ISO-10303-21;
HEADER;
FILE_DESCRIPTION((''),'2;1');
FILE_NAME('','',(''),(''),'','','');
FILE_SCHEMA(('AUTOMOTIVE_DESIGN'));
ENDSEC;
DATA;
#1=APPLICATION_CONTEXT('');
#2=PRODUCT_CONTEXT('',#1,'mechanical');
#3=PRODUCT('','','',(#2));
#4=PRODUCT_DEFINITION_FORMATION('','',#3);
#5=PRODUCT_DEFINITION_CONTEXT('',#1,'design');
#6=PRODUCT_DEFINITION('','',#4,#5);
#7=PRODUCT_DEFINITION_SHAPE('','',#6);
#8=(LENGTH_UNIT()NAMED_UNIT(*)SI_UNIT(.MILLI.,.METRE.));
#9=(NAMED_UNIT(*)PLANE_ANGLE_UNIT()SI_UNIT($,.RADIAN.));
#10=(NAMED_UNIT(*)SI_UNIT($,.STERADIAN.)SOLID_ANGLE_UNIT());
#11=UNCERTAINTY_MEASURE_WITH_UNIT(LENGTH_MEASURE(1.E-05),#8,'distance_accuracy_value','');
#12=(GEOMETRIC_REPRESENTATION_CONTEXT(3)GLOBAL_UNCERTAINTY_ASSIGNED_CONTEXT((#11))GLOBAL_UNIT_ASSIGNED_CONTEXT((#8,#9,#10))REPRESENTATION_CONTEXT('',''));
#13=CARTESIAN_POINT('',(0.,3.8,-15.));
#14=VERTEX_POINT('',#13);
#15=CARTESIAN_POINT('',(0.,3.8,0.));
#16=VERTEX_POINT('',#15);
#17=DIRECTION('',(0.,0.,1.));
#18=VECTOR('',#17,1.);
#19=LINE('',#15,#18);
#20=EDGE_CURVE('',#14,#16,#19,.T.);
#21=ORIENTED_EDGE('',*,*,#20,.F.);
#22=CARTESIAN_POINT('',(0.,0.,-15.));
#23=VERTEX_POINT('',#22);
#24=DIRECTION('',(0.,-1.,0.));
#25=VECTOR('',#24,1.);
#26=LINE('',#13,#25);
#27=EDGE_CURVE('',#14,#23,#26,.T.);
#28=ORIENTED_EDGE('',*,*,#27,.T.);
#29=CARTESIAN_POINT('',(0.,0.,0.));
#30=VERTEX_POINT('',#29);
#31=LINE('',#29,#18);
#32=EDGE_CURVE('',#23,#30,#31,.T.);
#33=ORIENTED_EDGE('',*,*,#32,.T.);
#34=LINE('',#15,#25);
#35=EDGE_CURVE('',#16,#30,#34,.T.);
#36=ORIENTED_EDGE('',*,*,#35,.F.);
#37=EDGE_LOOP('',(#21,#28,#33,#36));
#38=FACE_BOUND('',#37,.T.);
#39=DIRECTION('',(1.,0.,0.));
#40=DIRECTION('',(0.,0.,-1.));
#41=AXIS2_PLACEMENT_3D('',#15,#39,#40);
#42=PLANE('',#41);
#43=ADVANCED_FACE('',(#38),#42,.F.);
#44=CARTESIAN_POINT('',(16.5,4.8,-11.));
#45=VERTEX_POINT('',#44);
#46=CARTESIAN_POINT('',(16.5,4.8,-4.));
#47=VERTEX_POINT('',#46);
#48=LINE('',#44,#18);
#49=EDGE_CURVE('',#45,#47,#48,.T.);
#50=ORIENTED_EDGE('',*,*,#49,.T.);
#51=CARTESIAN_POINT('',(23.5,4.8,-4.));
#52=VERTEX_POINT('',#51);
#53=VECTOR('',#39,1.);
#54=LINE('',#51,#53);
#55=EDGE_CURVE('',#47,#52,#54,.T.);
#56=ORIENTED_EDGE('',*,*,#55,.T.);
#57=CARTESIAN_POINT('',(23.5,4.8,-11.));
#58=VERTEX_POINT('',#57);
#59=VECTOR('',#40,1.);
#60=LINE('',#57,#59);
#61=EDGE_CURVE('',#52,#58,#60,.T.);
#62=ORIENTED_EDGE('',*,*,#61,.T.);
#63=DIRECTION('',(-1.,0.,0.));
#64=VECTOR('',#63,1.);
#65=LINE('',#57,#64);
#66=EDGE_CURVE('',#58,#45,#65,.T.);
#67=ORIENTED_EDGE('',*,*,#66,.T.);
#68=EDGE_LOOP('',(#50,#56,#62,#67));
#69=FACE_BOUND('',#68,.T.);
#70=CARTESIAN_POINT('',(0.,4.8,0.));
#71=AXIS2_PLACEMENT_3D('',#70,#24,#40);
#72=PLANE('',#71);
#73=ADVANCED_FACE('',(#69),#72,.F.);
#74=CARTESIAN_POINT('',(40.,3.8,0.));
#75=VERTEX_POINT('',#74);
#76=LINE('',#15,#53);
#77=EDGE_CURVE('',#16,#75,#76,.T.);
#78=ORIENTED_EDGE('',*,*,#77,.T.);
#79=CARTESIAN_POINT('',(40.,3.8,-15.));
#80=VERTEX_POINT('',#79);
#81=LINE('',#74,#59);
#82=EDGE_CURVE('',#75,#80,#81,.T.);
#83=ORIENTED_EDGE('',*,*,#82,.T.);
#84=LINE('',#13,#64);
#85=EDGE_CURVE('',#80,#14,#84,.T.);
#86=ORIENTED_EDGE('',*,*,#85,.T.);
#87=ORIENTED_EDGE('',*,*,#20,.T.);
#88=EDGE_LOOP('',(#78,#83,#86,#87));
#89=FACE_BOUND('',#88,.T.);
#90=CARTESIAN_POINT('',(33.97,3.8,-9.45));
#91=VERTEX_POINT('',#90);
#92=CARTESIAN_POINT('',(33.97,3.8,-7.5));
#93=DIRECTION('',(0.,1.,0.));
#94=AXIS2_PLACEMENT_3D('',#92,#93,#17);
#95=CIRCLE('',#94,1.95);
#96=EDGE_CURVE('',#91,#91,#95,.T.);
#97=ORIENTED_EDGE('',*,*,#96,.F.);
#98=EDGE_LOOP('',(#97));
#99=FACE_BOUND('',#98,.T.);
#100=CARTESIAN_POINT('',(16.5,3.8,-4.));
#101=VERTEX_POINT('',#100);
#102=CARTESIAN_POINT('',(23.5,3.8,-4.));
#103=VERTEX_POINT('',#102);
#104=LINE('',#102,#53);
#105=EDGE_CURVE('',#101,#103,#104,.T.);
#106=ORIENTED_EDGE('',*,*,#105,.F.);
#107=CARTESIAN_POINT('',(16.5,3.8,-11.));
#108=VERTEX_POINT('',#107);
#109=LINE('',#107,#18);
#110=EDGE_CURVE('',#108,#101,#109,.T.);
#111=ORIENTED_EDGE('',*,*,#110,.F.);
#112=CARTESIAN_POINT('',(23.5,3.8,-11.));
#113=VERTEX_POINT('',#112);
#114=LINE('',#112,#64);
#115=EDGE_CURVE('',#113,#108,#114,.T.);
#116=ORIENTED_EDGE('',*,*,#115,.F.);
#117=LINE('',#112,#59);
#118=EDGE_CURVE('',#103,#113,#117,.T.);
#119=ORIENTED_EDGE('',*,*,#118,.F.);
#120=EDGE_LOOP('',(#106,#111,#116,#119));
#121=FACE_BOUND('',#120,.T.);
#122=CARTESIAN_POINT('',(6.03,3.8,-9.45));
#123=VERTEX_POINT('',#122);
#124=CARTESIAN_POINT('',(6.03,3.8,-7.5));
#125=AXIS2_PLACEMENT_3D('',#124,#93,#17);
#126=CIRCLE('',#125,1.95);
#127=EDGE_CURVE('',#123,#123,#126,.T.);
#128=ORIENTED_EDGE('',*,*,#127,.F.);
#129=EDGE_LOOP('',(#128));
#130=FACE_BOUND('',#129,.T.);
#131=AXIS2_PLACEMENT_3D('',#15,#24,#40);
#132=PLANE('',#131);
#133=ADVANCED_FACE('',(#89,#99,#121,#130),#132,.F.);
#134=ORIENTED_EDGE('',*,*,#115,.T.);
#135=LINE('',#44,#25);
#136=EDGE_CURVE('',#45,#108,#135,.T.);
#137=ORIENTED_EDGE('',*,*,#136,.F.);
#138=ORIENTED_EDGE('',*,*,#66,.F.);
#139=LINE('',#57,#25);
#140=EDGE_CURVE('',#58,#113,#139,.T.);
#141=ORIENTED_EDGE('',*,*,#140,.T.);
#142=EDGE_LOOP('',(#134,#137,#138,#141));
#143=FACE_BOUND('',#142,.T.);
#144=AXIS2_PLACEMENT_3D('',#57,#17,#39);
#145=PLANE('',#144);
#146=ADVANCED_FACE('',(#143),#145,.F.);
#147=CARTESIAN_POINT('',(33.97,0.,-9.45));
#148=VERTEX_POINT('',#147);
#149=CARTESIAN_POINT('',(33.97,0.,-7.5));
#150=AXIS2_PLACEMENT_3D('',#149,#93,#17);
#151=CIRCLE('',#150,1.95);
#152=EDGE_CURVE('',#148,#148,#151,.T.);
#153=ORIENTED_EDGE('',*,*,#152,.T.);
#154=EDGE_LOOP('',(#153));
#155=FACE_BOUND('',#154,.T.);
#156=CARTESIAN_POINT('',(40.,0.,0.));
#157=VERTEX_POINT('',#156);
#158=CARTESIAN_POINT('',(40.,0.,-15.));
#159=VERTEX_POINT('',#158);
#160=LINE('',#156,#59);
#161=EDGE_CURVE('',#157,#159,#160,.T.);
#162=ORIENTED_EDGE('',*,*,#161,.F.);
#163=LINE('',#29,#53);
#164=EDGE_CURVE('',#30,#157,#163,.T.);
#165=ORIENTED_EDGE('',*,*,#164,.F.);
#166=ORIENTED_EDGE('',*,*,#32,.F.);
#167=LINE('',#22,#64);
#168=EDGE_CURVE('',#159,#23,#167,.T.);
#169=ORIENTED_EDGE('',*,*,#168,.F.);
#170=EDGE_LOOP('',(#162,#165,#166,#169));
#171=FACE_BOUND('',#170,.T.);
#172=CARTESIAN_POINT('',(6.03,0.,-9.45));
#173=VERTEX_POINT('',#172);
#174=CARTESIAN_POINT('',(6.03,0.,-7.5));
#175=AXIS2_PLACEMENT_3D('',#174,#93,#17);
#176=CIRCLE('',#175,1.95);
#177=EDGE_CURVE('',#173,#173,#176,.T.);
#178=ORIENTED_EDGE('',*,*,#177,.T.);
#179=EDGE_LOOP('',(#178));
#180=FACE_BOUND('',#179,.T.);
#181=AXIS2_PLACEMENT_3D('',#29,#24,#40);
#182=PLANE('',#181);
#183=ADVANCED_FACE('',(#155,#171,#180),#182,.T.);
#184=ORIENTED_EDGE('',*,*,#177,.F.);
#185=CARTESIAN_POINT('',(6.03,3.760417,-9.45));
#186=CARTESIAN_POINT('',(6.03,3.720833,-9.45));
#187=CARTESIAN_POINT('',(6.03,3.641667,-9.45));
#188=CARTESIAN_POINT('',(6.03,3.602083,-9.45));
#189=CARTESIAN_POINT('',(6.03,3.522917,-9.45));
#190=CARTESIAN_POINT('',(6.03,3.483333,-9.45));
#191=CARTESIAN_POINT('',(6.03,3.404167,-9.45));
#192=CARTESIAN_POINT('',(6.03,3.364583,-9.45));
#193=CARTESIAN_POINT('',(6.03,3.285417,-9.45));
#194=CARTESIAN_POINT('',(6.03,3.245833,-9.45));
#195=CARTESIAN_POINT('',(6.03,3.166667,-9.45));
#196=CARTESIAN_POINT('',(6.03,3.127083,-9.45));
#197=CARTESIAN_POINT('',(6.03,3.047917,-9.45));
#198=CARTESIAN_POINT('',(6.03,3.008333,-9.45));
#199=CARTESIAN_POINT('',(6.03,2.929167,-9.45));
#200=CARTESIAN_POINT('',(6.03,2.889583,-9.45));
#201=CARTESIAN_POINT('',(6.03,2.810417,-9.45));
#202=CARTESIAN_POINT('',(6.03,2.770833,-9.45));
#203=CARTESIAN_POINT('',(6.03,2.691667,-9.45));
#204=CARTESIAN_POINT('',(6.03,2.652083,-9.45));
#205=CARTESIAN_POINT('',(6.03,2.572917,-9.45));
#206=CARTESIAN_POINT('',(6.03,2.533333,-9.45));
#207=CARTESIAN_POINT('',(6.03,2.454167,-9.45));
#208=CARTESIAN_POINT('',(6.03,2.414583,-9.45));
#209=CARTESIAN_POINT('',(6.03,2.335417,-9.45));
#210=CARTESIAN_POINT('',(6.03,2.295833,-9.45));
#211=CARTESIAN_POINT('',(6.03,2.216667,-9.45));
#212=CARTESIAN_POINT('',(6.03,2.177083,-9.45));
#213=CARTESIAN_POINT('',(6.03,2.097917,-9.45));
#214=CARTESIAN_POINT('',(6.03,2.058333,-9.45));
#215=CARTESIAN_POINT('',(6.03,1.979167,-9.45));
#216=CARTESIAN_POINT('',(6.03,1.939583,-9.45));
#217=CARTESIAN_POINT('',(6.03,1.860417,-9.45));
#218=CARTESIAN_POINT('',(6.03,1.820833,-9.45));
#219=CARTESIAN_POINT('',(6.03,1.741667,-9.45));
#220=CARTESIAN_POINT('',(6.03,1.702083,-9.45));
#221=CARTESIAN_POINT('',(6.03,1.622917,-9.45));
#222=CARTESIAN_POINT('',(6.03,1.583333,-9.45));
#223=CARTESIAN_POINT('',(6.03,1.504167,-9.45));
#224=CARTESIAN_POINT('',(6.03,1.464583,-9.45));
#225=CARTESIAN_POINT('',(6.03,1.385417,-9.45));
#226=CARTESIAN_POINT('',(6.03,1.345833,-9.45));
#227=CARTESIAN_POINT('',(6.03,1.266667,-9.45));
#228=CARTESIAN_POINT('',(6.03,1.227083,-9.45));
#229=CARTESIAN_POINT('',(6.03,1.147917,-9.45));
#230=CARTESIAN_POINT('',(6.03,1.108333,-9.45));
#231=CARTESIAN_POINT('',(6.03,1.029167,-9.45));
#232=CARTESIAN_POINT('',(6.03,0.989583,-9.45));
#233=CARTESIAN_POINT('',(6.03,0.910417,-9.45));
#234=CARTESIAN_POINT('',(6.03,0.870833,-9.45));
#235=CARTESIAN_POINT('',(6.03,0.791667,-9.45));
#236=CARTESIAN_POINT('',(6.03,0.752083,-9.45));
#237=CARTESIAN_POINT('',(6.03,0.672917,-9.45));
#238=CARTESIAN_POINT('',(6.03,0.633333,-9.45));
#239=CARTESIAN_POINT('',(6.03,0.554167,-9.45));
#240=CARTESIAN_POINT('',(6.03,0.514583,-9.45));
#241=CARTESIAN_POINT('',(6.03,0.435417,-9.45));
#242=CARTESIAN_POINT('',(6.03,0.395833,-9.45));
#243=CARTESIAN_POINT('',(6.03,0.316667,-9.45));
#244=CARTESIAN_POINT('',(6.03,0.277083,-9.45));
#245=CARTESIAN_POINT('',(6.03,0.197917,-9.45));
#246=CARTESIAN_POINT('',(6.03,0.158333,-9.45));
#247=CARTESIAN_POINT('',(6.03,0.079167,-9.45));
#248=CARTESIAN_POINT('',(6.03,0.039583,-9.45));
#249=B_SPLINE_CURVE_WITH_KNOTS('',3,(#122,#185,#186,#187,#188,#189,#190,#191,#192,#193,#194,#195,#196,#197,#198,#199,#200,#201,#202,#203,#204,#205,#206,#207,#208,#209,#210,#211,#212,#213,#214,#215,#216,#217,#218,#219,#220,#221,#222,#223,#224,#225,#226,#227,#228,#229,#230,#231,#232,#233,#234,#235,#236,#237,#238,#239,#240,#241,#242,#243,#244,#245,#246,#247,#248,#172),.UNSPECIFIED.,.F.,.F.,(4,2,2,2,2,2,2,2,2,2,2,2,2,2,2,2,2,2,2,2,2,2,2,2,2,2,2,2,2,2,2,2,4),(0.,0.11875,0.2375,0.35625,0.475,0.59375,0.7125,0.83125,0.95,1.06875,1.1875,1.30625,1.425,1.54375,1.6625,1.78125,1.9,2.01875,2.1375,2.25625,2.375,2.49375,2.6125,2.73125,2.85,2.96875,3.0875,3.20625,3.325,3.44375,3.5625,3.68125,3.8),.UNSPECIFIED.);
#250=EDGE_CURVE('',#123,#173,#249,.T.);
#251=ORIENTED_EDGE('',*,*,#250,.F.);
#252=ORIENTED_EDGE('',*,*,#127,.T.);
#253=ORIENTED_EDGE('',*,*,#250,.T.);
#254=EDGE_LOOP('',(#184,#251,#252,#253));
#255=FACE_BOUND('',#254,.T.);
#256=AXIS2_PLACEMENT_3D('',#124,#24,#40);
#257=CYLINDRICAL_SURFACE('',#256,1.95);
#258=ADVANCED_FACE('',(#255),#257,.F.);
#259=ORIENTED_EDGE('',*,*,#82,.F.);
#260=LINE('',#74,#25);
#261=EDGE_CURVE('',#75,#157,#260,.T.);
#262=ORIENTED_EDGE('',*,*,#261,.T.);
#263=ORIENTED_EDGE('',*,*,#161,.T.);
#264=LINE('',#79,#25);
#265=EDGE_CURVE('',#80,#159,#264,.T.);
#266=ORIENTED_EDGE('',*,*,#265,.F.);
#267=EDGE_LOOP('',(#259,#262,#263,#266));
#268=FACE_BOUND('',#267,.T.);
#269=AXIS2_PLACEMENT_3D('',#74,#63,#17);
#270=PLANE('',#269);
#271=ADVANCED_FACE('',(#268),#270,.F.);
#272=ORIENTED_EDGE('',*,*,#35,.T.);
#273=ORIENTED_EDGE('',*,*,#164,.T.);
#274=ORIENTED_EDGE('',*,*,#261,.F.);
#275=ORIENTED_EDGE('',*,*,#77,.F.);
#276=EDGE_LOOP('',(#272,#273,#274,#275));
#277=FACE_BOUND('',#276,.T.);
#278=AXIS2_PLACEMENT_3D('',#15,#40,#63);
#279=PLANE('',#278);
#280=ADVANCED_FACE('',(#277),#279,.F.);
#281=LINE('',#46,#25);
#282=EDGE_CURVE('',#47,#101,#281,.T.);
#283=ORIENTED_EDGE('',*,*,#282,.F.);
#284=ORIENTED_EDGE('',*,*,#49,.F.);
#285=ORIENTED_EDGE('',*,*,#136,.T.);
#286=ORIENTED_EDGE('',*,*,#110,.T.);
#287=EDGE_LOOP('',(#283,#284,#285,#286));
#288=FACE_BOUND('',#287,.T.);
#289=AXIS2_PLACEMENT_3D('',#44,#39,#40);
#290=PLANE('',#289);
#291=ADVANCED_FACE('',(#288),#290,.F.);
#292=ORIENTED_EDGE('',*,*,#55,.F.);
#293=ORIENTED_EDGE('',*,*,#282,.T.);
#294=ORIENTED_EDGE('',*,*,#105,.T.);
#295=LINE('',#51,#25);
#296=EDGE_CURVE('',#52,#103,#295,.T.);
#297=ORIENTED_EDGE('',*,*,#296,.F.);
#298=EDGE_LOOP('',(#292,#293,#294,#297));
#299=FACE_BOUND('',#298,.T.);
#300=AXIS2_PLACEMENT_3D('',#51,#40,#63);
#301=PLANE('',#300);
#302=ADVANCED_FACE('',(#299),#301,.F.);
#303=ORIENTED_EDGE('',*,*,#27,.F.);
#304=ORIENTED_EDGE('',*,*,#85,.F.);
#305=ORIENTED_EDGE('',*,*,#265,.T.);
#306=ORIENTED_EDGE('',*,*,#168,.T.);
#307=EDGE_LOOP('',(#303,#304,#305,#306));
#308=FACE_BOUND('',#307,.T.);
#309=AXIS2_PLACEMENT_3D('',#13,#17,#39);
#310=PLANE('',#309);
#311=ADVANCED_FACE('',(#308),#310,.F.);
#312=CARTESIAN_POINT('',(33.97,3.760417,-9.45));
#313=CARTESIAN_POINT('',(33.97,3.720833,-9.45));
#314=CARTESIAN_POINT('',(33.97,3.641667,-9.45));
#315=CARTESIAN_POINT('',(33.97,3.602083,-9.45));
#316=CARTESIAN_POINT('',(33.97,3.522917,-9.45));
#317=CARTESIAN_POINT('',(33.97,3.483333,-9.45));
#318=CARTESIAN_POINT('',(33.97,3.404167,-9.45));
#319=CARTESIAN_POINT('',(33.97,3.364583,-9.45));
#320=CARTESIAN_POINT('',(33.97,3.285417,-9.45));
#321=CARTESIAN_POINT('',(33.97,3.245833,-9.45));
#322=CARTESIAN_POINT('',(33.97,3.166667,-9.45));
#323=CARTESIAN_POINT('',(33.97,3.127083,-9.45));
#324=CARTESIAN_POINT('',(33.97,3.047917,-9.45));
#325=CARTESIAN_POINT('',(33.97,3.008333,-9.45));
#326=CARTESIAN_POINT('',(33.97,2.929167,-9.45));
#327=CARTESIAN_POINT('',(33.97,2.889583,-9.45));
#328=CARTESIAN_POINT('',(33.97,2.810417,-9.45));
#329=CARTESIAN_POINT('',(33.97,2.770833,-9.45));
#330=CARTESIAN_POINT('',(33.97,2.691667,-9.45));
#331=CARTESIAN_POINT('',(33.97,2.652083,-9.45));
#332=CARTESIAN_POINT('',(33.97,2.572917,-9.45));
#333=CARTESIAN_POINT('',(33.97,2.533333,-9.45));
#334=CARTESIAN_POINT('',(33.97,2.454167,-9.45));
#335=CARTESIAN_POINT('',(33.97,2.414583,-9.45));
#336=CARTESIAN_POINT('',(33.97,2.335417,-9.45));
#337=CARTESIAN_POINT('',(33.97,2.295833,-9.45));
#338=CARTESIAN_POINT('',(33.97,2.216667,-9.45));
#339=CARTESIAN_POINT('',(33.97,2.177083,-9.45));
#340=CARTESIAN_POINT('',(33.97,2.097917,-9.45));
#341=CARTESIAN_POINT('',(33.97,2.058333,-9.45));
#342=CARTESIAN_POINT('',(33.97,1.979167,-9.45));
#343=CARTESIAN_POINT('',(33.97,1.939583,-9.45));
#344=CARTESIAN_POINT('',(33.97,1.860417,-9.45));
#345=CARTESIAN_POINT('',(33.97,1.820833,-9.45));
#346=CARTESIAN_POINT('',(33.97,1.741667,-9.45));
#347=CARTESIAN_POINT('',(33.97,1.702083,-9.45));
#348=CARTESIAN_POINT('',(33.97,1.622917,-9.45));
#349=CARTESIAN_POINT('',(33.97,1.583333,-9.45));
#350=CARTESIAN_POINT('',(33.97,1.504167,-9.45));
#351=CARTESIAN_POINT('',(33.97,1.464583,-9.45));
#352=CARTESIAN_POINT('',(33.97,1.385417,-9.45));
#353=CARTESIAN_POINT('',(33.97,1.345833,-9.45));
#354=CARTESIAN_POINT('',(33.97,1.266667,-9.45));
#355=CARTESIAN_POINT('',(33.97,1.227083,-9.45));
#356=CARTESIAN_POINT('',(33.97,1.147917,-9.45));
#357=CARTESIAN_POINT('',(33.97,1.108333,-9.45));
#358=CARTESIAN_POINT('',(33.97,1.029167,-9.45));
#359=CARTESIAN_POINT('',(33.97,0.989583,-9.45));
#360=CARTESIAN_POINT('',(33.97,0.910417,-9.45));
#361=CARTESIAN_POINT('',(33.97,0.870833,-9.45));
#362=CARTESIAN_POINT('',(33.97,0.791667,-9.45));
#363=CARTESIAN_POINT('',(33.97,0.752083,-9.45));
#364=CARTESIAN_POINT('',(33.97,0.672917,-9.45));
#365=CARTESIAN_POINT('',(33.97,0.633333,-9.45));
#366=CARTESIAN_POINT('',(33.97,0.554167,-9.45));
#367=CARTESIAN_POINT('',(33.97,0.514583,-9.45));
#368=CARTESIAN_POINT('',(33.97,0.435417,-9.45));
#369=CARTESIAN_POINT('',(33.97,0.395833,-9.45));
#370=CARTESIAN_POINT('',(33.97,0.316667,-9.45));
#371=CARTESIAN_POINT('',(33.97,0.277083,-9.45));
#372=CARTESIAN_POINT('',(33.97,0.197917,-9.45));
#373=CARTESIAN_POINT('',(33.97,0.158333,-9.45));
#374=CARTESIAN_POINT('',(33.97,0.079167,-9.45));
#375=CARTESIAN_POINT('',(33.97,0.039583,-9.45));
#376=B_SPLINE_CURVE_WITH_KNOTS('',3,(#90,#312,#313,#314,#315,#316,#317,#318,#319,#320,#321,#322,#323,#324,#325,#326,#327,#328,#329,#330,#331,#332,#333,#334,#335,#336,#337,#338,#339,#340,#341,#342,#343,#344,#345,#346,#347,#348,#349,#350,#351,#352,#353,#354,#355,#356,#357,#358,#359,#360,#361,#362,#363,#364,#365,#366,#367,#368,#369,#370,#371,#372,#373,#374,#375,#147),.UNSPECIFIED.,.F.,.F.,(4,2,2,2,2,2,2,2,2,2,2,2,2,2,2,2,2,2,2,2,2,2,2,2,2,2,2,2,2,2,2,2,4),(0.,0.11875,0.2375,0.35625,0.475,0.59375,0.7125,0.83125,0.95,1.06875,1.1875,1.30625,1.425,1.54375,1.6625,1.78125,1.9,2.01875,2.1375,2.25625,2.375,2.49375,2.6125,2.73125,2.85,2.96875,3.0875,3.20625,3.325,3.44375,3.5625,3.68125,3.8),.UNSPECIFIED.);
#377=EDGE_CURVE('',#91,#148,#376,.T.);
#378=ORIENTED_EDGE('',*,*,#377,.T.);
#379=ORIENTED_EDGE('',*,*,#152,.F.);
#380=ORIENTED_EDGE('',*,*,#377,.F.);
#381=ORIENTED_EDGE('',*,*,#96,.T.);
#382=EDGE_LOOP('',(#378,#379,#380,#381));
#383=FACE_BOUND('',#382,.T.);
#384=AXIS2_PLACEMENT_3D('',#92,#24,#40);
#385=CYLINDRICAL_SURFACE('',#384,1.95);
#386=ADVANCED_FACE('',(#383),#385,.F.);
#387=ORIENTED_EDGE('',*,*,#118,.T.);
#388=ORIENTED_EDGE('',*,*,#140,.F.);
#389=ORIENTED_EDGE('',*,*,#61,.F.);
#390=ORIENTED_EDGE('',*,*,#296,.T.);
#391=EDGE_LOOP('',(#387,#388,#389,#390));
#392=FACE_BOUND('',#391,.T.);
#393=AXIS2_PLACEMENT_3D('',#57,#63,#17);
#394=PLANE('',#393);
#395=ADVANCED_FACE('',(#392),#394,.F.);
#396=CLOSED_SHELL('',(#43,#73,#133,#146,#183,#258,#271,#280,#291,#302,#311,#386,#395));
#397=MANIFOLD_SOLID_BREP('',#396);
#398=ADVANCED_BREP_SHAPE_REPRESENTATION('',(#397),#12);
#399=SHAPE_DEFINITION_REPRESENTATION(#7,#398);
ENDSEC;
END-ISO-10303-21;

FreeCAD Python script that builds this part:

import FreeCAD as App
import Part
import Sketcher

V = App.Vector


def add_polygon(sketch, points):
    """Adds a closed chain of lines whose ends are joined by coincident constraints."""
    first, n = sketch.GeometryCount, len(points)
    for a, b in zip(points, points[1:] + points[:1]):
        sketch.addGeometry(Part.LineSegment(App.Vector(*a, 0), App.Vector(*b, 0)), False)
    for i in range(n):
        sketch.addConstraint(Sketcher.Constraint("Coincident", first + i, 2, first + (i + 1) % n, 1))

doc = App.newDocument("Part")
body = doc.addObject("PartDesign::Body", "Body")

sketch1 = doc.addObject("Sketcher::SketchObject", "Sketch")
body.addObject(sketch1)
sketch1.AttachmentSupport = (doc.XZ_Plane, [""])
sketch1.MapMode = "FlatFace"
add_polygon(sketch1, [(0, -15), (0, 0), (40, 0), (40, -15)])
sketch1.addGeometry(Part.Circle(V(6.03, -7.5, 0), V(0, 0, 1), 1.95), False)
sketch1.addGeometry(Part.Circle(V(33.97, -7.5, 0), V(0, 0, 1), 1.95), False)
sketch1.addConstraint(Sketcher.Constraint("Vertical", 0))
sketch1.addConstraint(Sketcher.Constraint("Horizontal", 1))
sketch1.addConstraint(Sketcher.Constraint("Vertical", 2))
sketch1.addConstraint(Sketcher.Constraint("Horizontal", 3))
sketch1.addConstraint(Sketcher.Constraint("Coincident", 0, 2, -1, 1))
sketch1.addConstraint(Sketcher.Constraint("Equal", 4, 5))
sketch1.addConstraint(Sketcher.Constraint("Horizontal", 4, 3, 5, 3))
sketch1.addConstraint(Sketcher.Constraint("Diameter", 4, 3.9))
sketch1.addConstraint(Sketcher.Constraint("DistanceX", 1, 1, 1, 2, 40.0))
sketch1.addConstraint(Sketcher.Constraint("DistanceY", 0, 1, 0, 2, 15.0))
sketch1.addConstraint(Sketcher.Constraint("DistanceY", 4, 3, -1, 1, 7.5))
sketch1.addConstraint(Sketcher.Constraint("DistanceX", -1, 1, 4, 3, 6.03))
sketch1.addConstraint(Sketcher.Constraint("DistanceX", -1, 1, 5, 3, 33.97))
pad1 = doc.addObject("PartDesign::Pad", "Pad")
body.addObject(pad1)
pad1.Profile = sketch1
pad1.Length = 3.8
pad1.Reversed = True

sketch2 = doc.addObject("Sketcher::SketchObject", "Sketch001")
body.addObject(sketch2)
sketch2.AttachmentSupport = (doc.XZ_Plane, [""])
sketch2.MapMode = "FlatFace"
sketch2.AttachmentOffset = App.Placement(V(0, 0, -3.8), App.Rotation())
add_polygon(sketch2, [(16.5, -11), (16.5, -4), (23.5, -4), (23.5, -11)])
sketch2.addConstraint(Sketcher.Constraint("Vertical", 0))
sketch2.addConstraint(Sketcher.Constraint("Horizontal", 1))
sketch2.addConstraint(Sketcher.Constraint("Vertical", 2))
sketch2.addConstraint(Sketcher.Constraint("Horizontal", 3))
sketch2.addConstraint(Sketcher.Constraint("Equal", 3, 0))
sketch2.addConstraint(Sketcher.Constraint("DistanceX", 1, 1, 1, 2, 7.0))
sketch2.addConstraint(Sketcher.Constraint("DistanceY", 0, 2, -1, 1, 4.0))
sketch2.addConstraint(Sketcher.Constraint("DistanceX", -1, 1, 0, 2, 16.5))
pad2 = doc.addObject("PartDesign::Pad", "Pad001")
body.addObject(pad2)
pad2.Profile = sketch2
pad2.Length = 1
pad2.Reversed = True

doc.recompute()
